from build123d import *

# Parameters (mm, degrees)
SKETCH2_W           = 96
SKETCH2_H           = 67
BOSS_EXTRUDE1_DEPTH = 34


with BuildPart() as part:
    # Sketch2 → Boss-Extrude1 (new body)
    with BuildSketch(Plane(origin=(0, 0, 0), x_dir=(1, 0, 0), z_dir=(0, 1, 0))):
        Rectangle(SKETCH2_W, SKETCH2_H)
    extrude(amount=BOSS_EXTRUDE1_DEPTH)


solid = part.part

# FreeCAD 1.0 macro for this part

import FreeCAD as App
import Part
import Sketcher

doc = App.newDocument("Part")
body = doc.addObject("PartDesign::Body", "Body")

# Sketch on XZ plane
sketch1 = body.newObject("Sketcher::SketchObject", "Sketch")
sketch1.AttachmentSupport = (doc.getObject("XZ_Plane"), [""])
sketch1.MapMode = "FlatFace"
sketch1.addGeometry(Part.LineSegment(App.Vector(-48, -33.5, 0), App.Vector(-48, 33.5, 0)), False)
sketch1.addGeometry(Part.LineSegment(App.Vector(-48, 33.5, 0), App.Vector(48, 33.5, 0)), False)
sketch1.addGeometry(Part.LineSegment(App.Vector(48, 33.5, 0), App.Vector(48, -33.5, 0)), False)
sketch1.addGeometry(Part.LineSegment(App.Vector(48, -33.5, 0), App.Vector(-48, -33.5, 0)), False)
sketch1.addConstraint(Sketcher.Constraint("Coincident", 0, 2, 1, 1))
sketch1.addConstraint(Sketcher.Constraint("Coincident", 1, 2, 2, 1))
sketch1.addConstraint(Sketcher.Constraint("Coincident", 2, 2, 3, 1))
sketch1.addConstraint(Sketcher.Constraint("Coincident", 3, 2, 0, 1))
sketch1.addConstraint(Sketcher.Constraint("Vertical", 0))
sketch1.addConstraint(Sketcher.Constraint("Horizontal", 1))
sketch1.addConstraint(Sketcher.Constraint("Vertical", 2))
sketch1.addConstraint(Sketcher.Constraint("Horizontal", 3))
sketch1.addConstraint(Sketcher.Constraint("Symmetric", 0, 2, 2, 2, -1, 1))
sketch1.addConstraint(Sketcher.Constraint("DistanceX", 1, 1, 1, 2, 96.0))
sketch1.addConstraint(Sketcher.Constraint("DistanceY", 0, 1, 0, 2, 67.0))
pad1 = body.newObject("PartDesign::Pad", "Pad")
pad1.Profile = sketch1
pad1.Length = 34
pad1.Reversed = True

doc.recompute()
